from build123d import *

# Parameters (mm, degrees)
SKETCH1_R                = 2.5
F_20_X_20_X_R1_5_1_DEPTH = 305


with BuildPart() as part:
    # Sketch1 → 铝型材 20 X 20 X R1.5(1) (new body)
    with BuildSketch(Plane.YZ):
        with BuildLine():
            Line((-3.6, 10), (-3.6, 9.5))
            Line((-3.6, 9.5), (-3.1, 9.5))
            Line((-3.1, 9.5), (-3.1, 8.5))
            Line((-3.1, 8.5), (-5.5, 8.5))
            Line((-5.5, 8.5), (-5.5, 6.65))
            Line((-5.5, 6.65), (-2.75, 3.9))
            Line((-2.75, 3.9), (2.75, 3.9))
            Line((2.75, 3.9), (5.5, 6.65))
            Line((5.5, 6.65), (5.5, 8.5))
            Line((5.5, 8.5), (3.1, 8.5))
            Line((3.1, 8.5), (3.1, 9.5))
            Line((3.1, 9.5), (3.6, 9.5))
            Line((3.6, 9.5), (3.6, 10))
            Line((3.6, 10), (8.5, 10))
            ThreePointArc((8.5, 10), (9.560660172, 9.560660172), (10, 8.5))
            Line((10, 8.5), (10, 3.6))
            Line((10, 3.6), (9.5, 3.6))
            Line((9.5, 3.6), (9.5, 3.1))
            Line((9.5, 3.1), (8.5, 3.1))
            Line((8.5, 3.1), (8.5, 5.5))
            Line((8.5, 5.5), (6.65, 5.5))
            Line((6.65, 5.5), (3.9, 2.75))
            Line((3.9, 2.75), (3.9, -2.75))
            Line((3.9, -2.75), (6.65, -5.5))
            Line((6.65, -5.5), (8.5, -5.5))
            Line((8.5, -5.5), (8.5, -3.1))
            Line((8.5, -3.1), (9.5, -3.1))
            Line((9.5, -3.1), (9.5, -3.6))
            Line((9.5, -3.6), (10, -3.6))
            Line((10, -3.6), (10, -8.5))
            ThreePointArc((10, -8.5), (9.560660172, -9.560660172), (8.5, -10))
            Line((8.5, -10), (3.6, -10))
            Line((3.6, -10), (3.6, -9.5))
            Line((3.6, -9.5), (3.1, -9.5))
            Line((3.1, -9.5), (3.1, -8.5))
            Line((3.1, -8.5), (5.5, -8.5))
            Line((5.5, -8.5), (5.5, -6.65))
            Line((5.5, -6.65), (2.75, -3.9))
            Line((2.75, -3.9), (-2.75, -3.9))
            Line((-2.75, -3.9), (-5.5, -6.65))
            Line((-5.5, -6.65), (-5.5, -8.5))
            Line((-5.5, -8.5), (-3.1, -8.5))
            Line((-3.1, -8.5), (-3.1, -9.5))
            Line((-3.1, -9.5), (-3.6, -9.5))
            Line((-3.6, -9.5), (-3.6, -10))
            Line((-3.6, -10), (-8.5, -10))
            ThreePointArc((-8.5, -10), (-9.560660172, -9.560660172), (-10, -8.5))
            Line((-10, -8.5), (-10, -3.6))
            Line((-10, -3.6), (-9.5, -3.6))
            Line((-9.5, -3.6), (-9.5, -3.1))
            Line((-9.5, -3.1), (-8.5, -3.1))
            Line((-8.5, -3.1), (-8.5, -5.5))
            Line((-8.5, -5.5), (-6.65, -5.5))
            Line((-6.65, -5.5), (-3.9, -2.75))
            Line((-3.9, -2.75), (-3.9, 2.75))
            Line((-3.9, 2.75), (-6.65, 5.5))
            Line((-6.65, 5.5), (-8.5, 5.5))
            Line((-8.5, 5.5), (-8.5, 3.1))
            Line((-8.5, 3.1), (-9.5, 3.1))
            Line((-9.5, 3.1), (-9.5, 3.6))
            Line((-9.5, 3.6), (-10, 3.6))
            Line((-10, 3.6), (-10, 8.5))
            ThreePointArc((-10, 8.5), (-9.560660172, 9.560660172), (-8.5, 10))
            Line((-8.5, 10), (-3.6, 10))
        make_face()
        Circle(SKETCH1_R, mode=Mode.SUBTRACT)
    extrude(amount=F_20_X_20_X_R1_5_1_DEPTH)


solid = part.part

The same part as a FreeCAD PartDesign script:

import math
import FreeCAD as App
import Part
import Sketcher

V = App.Vector
Q = App.Units.Quantity

doc = App.newDocument("Part")
params = doc.addObject("Spreadsheet::Sheet", "Params")
for row, (alias, value) in enumerate([
    ("sketch1_diameter", "5 mm"),
    ("sketch1_radius", "1.5 mm"),
    ("sketch1_width", "1 mm"),
    ("sketch1_width2", "4.9 mm"),
    ("sketch1_width3", "2.4 mm"),
    ("pad1_length", "305 mm"),
], start=1):
    params.set(f"A{row}", alias)
    params.set(f"B{row}", "=" + value)
    params.setAlias(f"B{row}", alias)

body = doc.addObject("PartDesign::Body", "Body")

sketch1 = body.newObject("Sketcher::SketchObject", "Sketch")
sketch1.AttachmentSupport = (doc.getObject("YZ_Plane"), [""])
sketch1.MapMode = "FlatFace"
sketch1.addGeometry(Part.LineSegment(V(-3.6, 9.5, 0), V(-3.6, 10, 0)), False)
sketch1.addGeometry(Part.LineSegment(V(-3.6, 10, 0), V(-8.5, 10, 0)), False)
sketch1.addGeometry(Part.ArcOfCircle(Part.Circle(V(-8.5, 8.5, 0), V(0, 0, 1), 1.5), math.radians(90), math.radians(180)), False)
sketch1.addGeometry(Part.LineSegment(V(-10, 8.5, 0), V(-10, 3.6, 0)), False)
sketch1.addGeometry(Part.LineSegment(V(-10, 3.6, 0), V(-9.5, 3.6, 0)), False)
sketch1.addGeometry(Part.LineSegment(V(-9.5, 3.6, 0), V(-9.5, 3.1, 0)), False)
sketch1.addGeometry(Part.LineSegment(V(-9.5, 3.1, 0), V(-8.5, 3.1, 0)), False)
sketch1.addGeometry(Part.LineSegment(V(-8.5, 3.1, 0), V(-8.5, 5.5, 0)), False)
sketch1.addGeometry(Part.LineSegment(V(-8.5, 5.5, 0), V(-6.65, 5.5, 0)), False)
sketch1.addGeometry(Part.LineSegment(V(-6.65, 5.5, 0), V(-3.9, 2.75, 0)), False)
sketch1.addGeometry(Part.LineSegment(V(-3.9, 2.75, 0), V(-3.9, -2.75, 0)), False)
sketch1.addGeometry(Part.LineSegment(V(-3.9, -2.75, 0), V(-6.65, -5.5, 0)), False)
sketch1.addGeometry(Part.LineSegment(V(-6.65, -5.5, 0), V(-8.5, -5.5, 0)), False)
sketch1.addGeometry(Part.LineSegment(V(-8.5, -5.5, 0), V(-8.5, -3.1, 0)), False)
sketch1.addGeometry(Part.LineSegment(V(-8.5, -3.1, 0), V(-9.5, -3.1, 0)), False)
sketch1.addGeometry(Part.LineSegment(V(-9.5, -3.1, 0), V(-9.5, -3.6, 0)), False)
sketch1.addGeometry(Part.LineSegment(V(-9.5, -3.6, 0), V(-10, -3.6, 0)), False)
sketch1.addGeometry(Part.LineSegment(V(-10, -3.6, 0), V(-10, -8.5, 0)), False)
sketch1.addGeometry(Part.ArcOfCircle(Part.Circle(V(-8.5, -8.5, 0), V(0, 0, 1), 1.5), math.radians(180), math.radians(270)), False)
sketch1.addGeometry(Part.LineSegment(V(-8.5, -10, 0), V(-3.6, -10, 0)), False)
sketch1.addGeometry(Part.LineSegment(V(-3.6, -10, 0), V(-3.6, -9.5, 0)), False)
sketch1.addGeometry(Part.LineSegment(V(-3.6, -9.5, 0), V(-3.1, -9.5, 0)), False)
sketch1.addGeometry(Part.LineSegment(V(-3.1, -9.5, 0), V(-3.1, -8.5, 0)), False)
sketch1.addGeometry(Part.LineSegment(V(-3.1, -8.5, 0), V(-5.5, -8.5, 0)), False)
sketch1.addGeometry(Part.LineSegment(V(-5.5, -8.5, 0), V(-5.5, -6.65, 0)), False)
sketch1.addGeometry(Part.LineSegment(V(-5.5, -6.65, 0), V(-2.75, -3.9, 0)), False)
sketch1.addGeometry(Part.LineSegment(V(-2.75, -3.9, 0), V(2.75, -3.9, 0)), False)
sketch1.addGeometry(Part.LineSegment(V(2.75, -3.9, 0), V(5.5, -6.65, 0)), False)
sketch1.addGeometry(Part.LineSegment(V(5.5, -6.65, 0), V(5.5, -8.5, 0)), False)
sketch1.addGeometry(Part.LineSegment(V(5.5, -8.5, 0), V(3.1, -8.5, 0)), False)
sketch1.addGeometry(Part.LineSegment(V(3.1, -8.5, 0), V(3.1, -9.5, 0)), False)
sketch1.addGeometry(Part.LineSegment(V(3.1, -9.5, 0), V(3.6, -9.5, 0)), False)
sketch1.addGeometry(Part.LineSegment(V(3.6, -9.5, 0), V(3.6, -10, 0)), False)
sketch1.addGeometry(Part.LineSegment(V(3.6, -10, 0), V(8.5, -10, 0)), False)
sketch1.addGeometry(Part.ArcOfCircle(Part.Circle(V(8.5, -8.5, 0), V(0, 0, 1), 1.5), math.radians(-90), math.radians(0)), False)
sketch1.addGeometry(Part.LineSegment(V(10, -8.5, 0), V(10, -3.6, 0)), False)
sketch1.addGeometry(Part.LineSegment(V(10, -3.6, 0), V(9.5, -3.6, 0)), False)
sketch1.addGeometry(Part.LineSegment(V(9.5, -3.6, 0), V(9.5, -3.1, 0)), False)
sketch1.addGeometry(Part.LineSegment(V(9.5, -3.1, 0), V(8.5, -3.1, 0)), False)
sketch1.addGeometry(Part.LineSegment(V(8.5, -3.1, 0), V(8.5, -5.5, 0)), False)
sketch1.addGeometry(Part.LineSegment(V(8.5, -5.5, 0), V(6.65, -5.5, 0)), False)
sketch1.addGeometry(Part.LineSegment(V(6.65, -5.5, 0), V(3.9, -2.75, 0)), False)
sketch1.addGeometry(Part.LineSegment(V(3.9, -2.75, 0), V(3.9, 2.75, 0)), False)
sketch1.addGeometry(Part.LineSegment(V(3.9, 2.75, 0), V(6.65, 5.5, 0)), False)
sketch1.addGeometry(Part.LineSegment(V(6.65, 5.5, 0), V(8.5, 5.5, 0)), False)
sketch1.addGeometry(Part.LineSegment(V(8.5, 5.5, 0), V(8.5, 3.1, 0)), False)
sketch1.addGeometry(Part.LineSegment(V(8.5, 3.1, 0), V(9.5, 3.1, 0)), False)
sketch1.addGeometry(Part.LineSegment(V(9.5, 3.1, 0), V(9.5, 3.6, 0)), False)
sketch1.addGeometry(Part.LineSegment(V(9.5, 3.6, 0), V(10, 3.6, 0)), False)
sketch1.addGeometry(Part.LineSegment(V(10, 3.6, 0), V(10, 8.5, 0)), False)
sketch1.addGeometry(Part.ArcOfCircle(Part.Circle(V(8.5, 8.5, 0), V(0, 0, 1), 1.5), math.radians(0), math.radians(90)), False)
sketch1.addGeometry(Part.LineSegment(V(8.5, 10, 0), V(3.6, 10, 0)), False)
sketch1.addGeometry(Part.LineSegment(V(3.6, 10, 0), V(3.6, 9.5, 0)), False)
sketch1.addGeometry(Part.LineSegment(V(3.6, 9.5, 0), V(3.1, 9.5, 0)), False)
sketch1.addGeometry(Part.LineSegment(V(3.1, 9.5, 0), V(3.1, 8.5, 0)), False)
sketch1.addGeometry(Part.LineSegment(V(3.1, 8.5, 0), V(5.5, 8.5, 0)), False)
sketch1.addGeometry(Part.LineSegment(V(5.5, 8.5, 0), V(5.5, 6.65, 0)), False)
sketch1.addGeometry(Part.LineSegment(V(5.5, 6.65, 0), V(2.75, 3.9, 0)), False)
sketch1.addGeometry(Part.LineSegment(V(2.75, 3.9, 0), V(-2.75, 3.9, 0)), False)
sketch1.addGeometry(Part.LineSegment(V(-2.75, 3.9, 0), V(-5.5, 6.65, 0)), False)
sketch1.addGeometry(Part.LineSegment(V(-5.5, 6.65, 0), V(-5.5, 8.5, 0)), False)
sketch1.addGeometry(Part.LineSegment(V(-5.5, 8.5, 0), V(-3.1, 8.5, 0)), False)
sketch1.addGeometry(Part.LineSegment(V(-3.1, 8.5, 0), V(-3.1, 9.5, 0)), False)
sketch1.addGeometry(Part.LineSegment(V(-3.1, 9.5, 0), V(-3.6, 9.5, 0)), False)
sketch1.addGeometry(Part.Circle(V(0, 0, 0), V(0, 0, 1), 2.5), False)
sketch1.addConstraint(Sketcher.Constraint("Coincident", 0, 2, 1, 1))
sketch1.addConstraint(Sketcher.Constraint("Tangent", 1, 2, 2, 1))
sketch1.addConstraint(Sketcher.Constraint("Tangent", 2, 2, 3, 1))
sketch1.addConstraint(Sketcher.Constraint("Coincident", 3, 2, 4, 1))
sketch1.addConstraint(Sketcher.Constraint("Coincident", 4, 2, 5, 1))
sketch1.addConstraint(Sketcher.Constraint("Coincident", 5, 2, 6, 1))
sketch1.addConstraint(Sketcher.Constraint("Coincident", 6, 2, 7, 1))
sketch1.addConstraint(Sketcher.Constraint("Coincident", 7, 2, 8, 1))
sketch1.addConstraint(Sketcher.Constraint("Coincident", 8, 2, 9, 1))
sketch1.addConstraint(Sketcher.Constraint("Coincident", 9, 2, 10, 1))
sketch1.addConstraint(Sketcher.Constraint("Coincident", 10, 2, 11, 1))
sketch1.addConstraint(Sketcher.Constraint("Coincident", 11, 2, 12, 1))
sketch1.addConstraint(Sketcher.Constraint("Coincident", 12, 2, 13, 1))
sketch1.addConstraint(Sketcher.Constraint("Coincident", 13, 2, 14, 1))
sketch1.addConstraint(Sketcher.Constraint("Coincident", 14, 2, 15, 1))
sketch1.addConstraint(Sketcher.Constraint("Coincident", 15, 2, 16, 1))
sketch1.addConstraint(Sketcher.Constraint("Coincident", 16, 2, 17, 1))
sketch1.addConstraint(Sketcher.Constraint("Tangent", 17, 2, 18, 1))
sketch1.addConstraint(Sketcher.Constraint("Tangent", 18, 2, 19, 1))
sketch1.addConstraint(Sketcher.Constraint("Coincident", 19, 2, 20, 1))
sketch1.addConstraint(Sketcher.Constraint("Coincident", 20, 2, 21, 1))
sketch1.addConstraint(Sketcher.Constraint("Coincident", 21, 2, 22, 1))
sketch1.addConstraint(Sketcher.Constraint("Coincident", 22, 2, 23, 1))
sketch1.addConstraint(Sketcher.Constraint("Coincident", 23, 2, 24, 1))
sketch1.addConstraint(Sketcher.Constraint("Coincident", 24, 2, 25, 1))
sketch1.addConstraint(Sketcher.Constraint("Coincident", 25, 2, 26, 1))
sketch1.addConstraint(Sketcher.Constraint("Coincident", 26, 2, 27, 1))
sketch1.addConstraint(Sketcher.Constraint("Coincident", 27, 2, 28, 1))
sketch1.addConstraint(Sketcher.Constraint("Coincident", 28, 2, 29, 1))
sketch1.addConstraint(Sketcher.Constraint("Coincident", 29, 2, 30, 1))
sketch1.addConstraint(Sketcher.Constraint("Coincident", 30, 2, 31, 1))
sketch1.addConstraint(Sketcher.Constraint("Coincident", 31, 2, 32, 1))
sketch1.addConstraint(Sketcher.Constraint("Coincident", 32, 2, 33, 1))
sketch1.addConstraint(Sketcher.Constraint("Tangent", 33, 2, 34, 1))
sketch1.addConstraint(Sketcher.Constraint("Tangent", 34, 2, 35, 1))
sketch1.addConstraint(Sketcher.Constraint("Coincident", 35, 2, 36, 1))
sketch1.addConstraint(Sketcher.Constraint("Coincident", 36, 2, 37, 1))
sketch1.addConstraint(Sketcher.Constraint("Coincident", 37, 2, 38, 1))
sketch1.addConstraint(Sketcher.Constraint("Coincident", 38, 2, 39, 1))
sketch1.addConstraint(Sketcher.Constraint("Coincident", 39, 2, 40, 1))
sketch1.addConstraint(Sketcher.Constraint("Coincident", 40, 2, 41, 1))
sketch1.addConstraint(Sketcher.Constraint("Coincident", 41, 2, 42, 1))
sketch1.addConstraint(Sketcher.Constraint("Coincident", 42, 2, 43, 1))
sketch1.addConstraint(Sketcher.Constraint("Coincident", 43, 2, 44, 1))
sketch1.addConstraint(Sketcher.Constraint("Coincident", 44, 2, 45, 1))
sketch1.addConstraint(Sketcher.Constraint("Coincident", 45, 2, 46, 1))
sketch1.addConstraint(Sketcher.Constraint("Coincident", 46, 2, 47, 1))
sketch1.addConstraint(Sketcher.Constraint("Coincident", 47, 2, 48, 1))
sketch1.addConstraint(Sketcher.Constraint("Coincident", 48, 2, 49, 1))
sketch1.addConstraint(Sketcher.Constraint("Tangent", 49, 2, 50, 1))
sketch1.addConstraint(Sketcher.Constraint("Tangent", 50, 2, 51, 1))
sketch1.addConstraint(Sketcher.Constraint("Coincident", 51, 2, 52, 1))
sketch1.addConstraint(Sketcher.Constraint("Coincident", 52, 2, 53, 1))
sketch1.addConstraint(Sketcher.Constraint("Coincident", 53, 2, 54, 1))
sketch1.addConstraint(Sketcher.Constraint("Coincident", 54, 2, 55, 1))
sketch1.addConstraint(Sketcher.Constraint("Coincident", 55, 2, 56, 1))
sketch1.addConstraint(Sketcher.Constraint("Coincident", 56, 2, 57, 1))
sketch1.addConstraint(Sketcher.Constraint("Coincident", 57, 2, 58, 1))
sketch1.addConstraint(Sketcher.Constraint("Coincident", 58, 2, 59, 1))
sketch1.addConstraint(Sketcher.Constraint("Coincident", 59, 2, 60, 1))
sketch1.addConstraint(Sketcher.Constraint("Coincident", 60, 2, 61, 1))
sketch1.addConstraint(Sketcher.Constraint("Coincident", 61, 2, 62, 1))
sketch1.addConstraint(Sketcher.Constraint("Coincident", 62, 2, 63, 1))
sketch1.addConstraint(Sketcher.Constraint("Coincident", 63, 2, 0, 1))
sketch1.addConstraint(Sketcher.Constraint("Vertical", 0))
sketch1.addConstraint(Sketcher.Constraint("Horizontal", 1))
sketch1.addConstraint(Sketcher.Constraint("Vertical", 3))
sketch1.addConstraint(Sketcher.Constraint("Horizontal", 4))
sketch1.addConstraint(Sketcher.Constraint("Vertical", 5))
sketch1.addConstraint(Sketcher.Constraint("Horizontal", 6))
sketch1.addConstraint(Sketcher.Constraint("Vertical", 7))
sketch1.addConstraint(Sketcher.Constraint("Horizontal", 8))
sketch1.addConstraint(Sketcher.Constraint("Vertical", 10))
sketch1.addConstraint(Sketcher.Constraint("Horizontal", 12))
sketch1.addConstraint(Sketcher.Constraint("Vertical", 13))
sketch1.addConstraint(Sketcher.Constraint("Horizontal", 14))
sketch1.addConstraint(Sketcher.Constraint("Vertical", 15))
sketch1.addConstraint(Sketcher.Constraint("Horizontal", 16))
sketch1.addConstraint(Sketcher.Constraint("Vertical", 17))
sketch1.addConstraint(Sketcher.Constraint("Horizontal", 19))
sketch1.addConstraint(Sketcher.Constraint("Vertical", 20))
sketch1.addConstraint(Sketcher.Constraint("Horizontal", 21))
sketch1.addConstraint(Sketcher.Constraint("Vertical", 22))
sketch1.addConstraint(Sketcher.Constraint("Horizontal", 23))
sketch1.addConstraint(Sketcher.Constraint("Vertical", 24))
sketch1.addConstraint(Sketcher.Constraint("Horizontal", 26))
sketch1.addConstraint(Sketcher.Constraint("Vertical", 28))
sketch1.addConstraint(Sketcher.Constraint("Horizontal", 29))
sketch1.addConstraint(Sketcher.Constraint("Vertical", 30))
sketch1.addConstraint(Sketcher.Constraint("Horizontal", 31))
sketch1.addConstraint(Sketcher.Constraint("Vertical", 32))
sketch1.addConstraint(Sketcher.Constraint("Horizontal", 33))
sketch1.addConstraint(Sketcher.Constraint("Vertical", 35))
sketch1.addConstraint(Sketcher.Constraint("Horizontal", 36))
sketch1.addConstraint(Sketcher.Constraint("Vertical", 37))
sketch1.addConstraint(Sketcher.Constraint("Horizontal", 38))
sketch1.addConstraint(Sketcher.Constraint("Vertical", 39))
sketch1.addConstraint(Sketcher.Constraint("Horizontal", 40))
sketch1.addConstraint(Sketcher.Constraint("Vertical", 42))
sketch1.addConstraint(Sketcher.Constraint("Horizontal", 44))
sketch1.addConstraint(Sketcher.Constraint("Vertical", 45))
sketch1.addConstraint(Sketcher.Constraint("Horizontal", 46))
sketch1.addConstraint(Sketcher.Constraint("Vertical", 47))
sketch1.addConstraint(Sketcher.Constraint("Horizontal", 48))
sketch1.addConstraint(Sketcher.Constraint("Vertical", 49))
sketch1.addConstraint(Sketcher.Constraint("Horizontal", 51))
sketch1.addConstraint(Sketcher.Constraint("Vertical", 52))
sketch1.addConstraint(Sketcher.Constraint("Horizontal", 53))
sketch1.addConstraint(Sketcher.Constraint("Vertical", 54))
sketch1.addConstraint(Sketcher.Constraint("Horizontal", 55))
sketch1.addConstraint(Sketcher.Constraint("Vertical", 56))
sketch1.addConstraint(Sketcher.Constraint("Horizontal", 58))
sketch1.addConstraint(Sketcher.Constraint("Vertical", 60))
sketch1.addConstraint(Sketcher.Constraint("Horizontal", 61))
sketch1.addConstraint(Sketcher.Constraint("Vertical", 62))
sketch1.addConstraint(Sketcher.Constraint("Horizontal", 63))
sketch1.addConstraint(Sketcher.Constraint("Coincident", 64, 3, -1, 1))
sketch1.addConstraint(Sketcher.Constraint("Equal", 2, 18))
sketch1.addConstraint(Sketcher.Constraint("Equal", 18, 34))
sketch1.addConstraint(Sketcher.Constraint("Equal", 34, 50))
sketch1.addConstraint(Sketcher.Constraint("Symmetric", 2, 3, 34, 3, -1, 1))
sketch1.addConstraint(Sketcher.Constraint("Symmetric", 18, 3, 50, 3, -1, 1))
sketch1.addConstraint(Sketcher.Constraint("Symmetric", 4, 2, 36, 2, -1, 1))
sketch1.addConstraint(Sketcher.Constraint("Symmetric", 6, 2, 38, 2, -1, 1))
sketch1.addConstraint(Sketcher.Constraint("Symmetric", 8, 2, 40, 2, -1, 1))
sketch1.addConstraint(Sketcher.Constraint("Symmetric", 9, 2, 41, 2, -1, 1))
sketch1.addConstraint(Sketcher.Constraint("Symmetric", 11, 2, 43, 2, -1, 1))
sketch1.addConstraint(Sketcher.Constraint("Symmetric", 13, 2, 45, 2, -1, 1))
sketch1.addConstraint(Sketcher.Constraint("Symmetric", 15, 2, 47, 2, -1, 1))
sketch1.addConstraint(Sketcher.Constraint("Symmetric", 20, 2, 52, 2, -1, 1))
sketch1.addConstraint(Sketcher.Constraint("Symmetric", 22, 2, 54, 2, -1, 1))
sketch1.addConstraint(Sketcher.Constraint("Symmetric", 24, 2, 56, 2, -1, 1))
sketch1.addConstraint(Sketcher.Constraint("Symmetric", 25, 2, 57, 2, -1, 1))
sketch1.addConstraint(Sketcher.Constraint("Symmetric", 27, 2, 59, 2, -1, 1))
sketch1.addConstraint(Sketcher.Constraint("Symmetric", 29, 2, 61, 2, -1, 1))
sketch1.addConstraint(Sketcher.Constraint("Symmetric", 31, 2, 63, 2, -1, 1))
sketch1.addConstraint(Sketcher.Constraint("Symmetric", 18, 3, 34, 3, -2))
sketch1.addConstraint(Sketcher.Constraint("Symmetric", 24, 2, 27, 2, -2))
sketch1.addConstraint(Sketcher.Constraint("Symmetric", 22, 2, 29, 2, -2))
sketch1.addConstraint(Sketcher.Constraint("Symmetric", 20, 2, 31, 2, -2))
sketch1.addConstraint(Sketcher.Constraint("Symmetric", 15, 2, 36, 2, -2))
sketch1.addConstraint(Sketcher.Constraint("Symmetric", 13, 2, 38, 2, -2))
sketch1.addConstraint(Sketcher.Constraint("Symmetric", 11, 2, 40, 2, -2))
sketch1.addConstraint(Sketcher.Constraint("Perpendicular", 9, 11))
sketch1.addConstraint(Sketcher.Constraint("Parallel", 11, 25))
sketch1.addConstraint(Sketcher.Constraint("Perpendicular", 25, 27))
sketch1.addConstraint(Sketcher.Constraint("Perpendicular", 41, 43))
sketch1.addConstraint(Sketcher.Constraint("Perpendicular", 57, 59))
sketch1.addConstraint(Sketcher.Constraint("Horizontal", 17, 2, 22, 2))
sketch1.addConstraint(Sketcher.Constraint("Horizontal", 10, 2, 41, 2))
sketch1.addConstraint(Sketcher.Constraint("Vertical", 1, 2, 6, 2))
sketch1.addConstraint(Sketcher.Constraint("Equal", 16, 21))
sketch1.addConstraint(Sketcher.Constraint("Equal", 63, 0))
sketch1.addConstraint(Sketcher.Constraint("Equal", 51, 3))
sketch1.addConstraint(Sketcher.Constraint("Equal", 0, 5))
sketch1.addConstraint(Sketcher.Constraint("Equal", 61, 7))
sketch1.addConstraint(Sketcher.Constraint("Equal", 58, 10))
sketch1.addConstraint(Sketcher.Constraint("Equal", 44, 24))
sketch1.addConstraint(Sketcher.Constraint("Equal", 11, 25))
sketch1.addConstraint(Sketcher.Constraint("Diameter", 64, Q("5 mm")))
sketch1.addConstraint(Sketcher.Constraint("Radius", 2, Q("1.5 mm")))
sketch1.addConstraint(Sketcher.Constraint("DistanceX", 6, 1, 6, 2, Q("1 mm")))
sketch1.addConstraint(Sketcher.Constraint("DistanceX", 1, 2, 1, 1, Q("4.9 mm")))
sketch1.addConstraint(Sketcher.Constraint("DistanceX", 23, 2, 23, 1, Q("2.4 mm")))
sketch1.addConstraint(Sketcher.Constraint("DistanceX", 26, 1, 26, 2, Q("5.5 mm")))
sketch1.addConstraint(Sketcher.Constraint("DistanceY", -1, 1, 0, 2, Q("10 mm")))
sketch1.addConstraint(Sketcher.Constraint("DistanceX", 8, 1, 8, 2, Q("1.85 mm")))
sketch1.setExpression("Constraints[159]", "Params.sketch1_diameter")
sketch1.setExpression("Constraints[160]", "Params.sketch1_radius")
sketch1.setExpression("Constraints[161]", "Params.sketch1_width")
sketch1.setExpression("Constraints[162]", "Params.sketch1_width2")
sketch1.setExpression("Constraints[163]", "Params.sketch1_width3")
pad1 = body.newObject("PartDesign::Pad", "Pad")
pad1.Profile = sketch1
pad1.setExpression("Length", "Params.pad1_length")

doc.recompute()
